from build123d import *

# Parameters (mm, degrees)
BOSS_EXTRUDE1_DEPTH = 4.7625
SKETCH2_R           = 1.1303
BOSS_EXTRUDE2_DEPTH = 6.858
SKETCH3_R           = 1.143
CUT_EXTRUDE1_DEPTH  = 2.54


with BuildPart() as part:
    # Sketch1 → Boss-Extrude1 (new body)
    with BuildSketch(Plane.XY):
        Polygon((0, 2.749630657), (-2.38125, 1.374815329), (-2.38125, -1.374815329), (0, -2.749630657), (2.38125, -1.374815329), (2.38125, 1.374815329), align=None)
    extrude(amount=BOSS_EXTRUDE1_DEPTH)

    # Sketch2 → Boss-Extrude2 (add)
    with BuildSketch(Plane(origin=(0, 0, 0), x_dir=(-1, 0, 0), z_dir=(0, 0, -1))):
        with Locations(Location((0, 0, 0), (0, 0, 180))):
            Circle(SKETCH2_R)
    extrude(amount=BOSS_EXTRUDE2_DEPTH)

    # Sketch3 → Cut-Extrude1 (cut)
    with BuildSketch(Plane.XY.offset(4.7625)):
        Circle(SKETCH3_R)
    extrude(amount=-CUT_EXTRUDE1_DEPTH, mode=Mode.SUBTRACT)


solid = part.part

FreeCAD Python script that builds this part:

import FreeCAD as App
import Part
import Sketcher
from FreeCAD import Vector
Q = App.Units.Quantity


def add_polygon(sketch, points):
    """Adds a closed chain of lines whose ends are joined by coincident constraints."""
    first, n = sketch.GeometryCount, len(points)
    for a, b in zip(points, points[1:] + points[:1]):
        sketch.addGeometry(Part.LineSegment(App.Vector(*a, 0), App.Vector(*b, 0)), False)
    for i in range(n):
        sketch.addConstraint(Sketcher.Constraint("Coincident", first + i, 2, first + (i + 1) % n, 1))

doc = App.newDocument("Part")
params = doc.addObject("Spreadsheet::Sheet", "Params")
for row, (alias, value) in enumerate([
    ("pad1_length", "0.1875 in"),
    ("sketch2_diameter", "0.089 in"),
    ("pad2_length", "0.27 in"),
    ("sketch3_diameter", "0.09 in"),
    ("pocket1_length", "0.1 in"),
], start=1):
    params.set(f"A{row}", alias)
    params.set(f"B{row}", "=" + value)
    params.setAlias(f"B{row}", alias)

body = doc.addObject("PartDesign::Body", "Body")

sketch1 = doc.addObject("Sketcher::SketchObject", "Sketch")
body.addObject(sketch1)
sketch1.AttachmentSupport = (doc.XY_Plane, [""])
sketch1.MapMode = "FlatFace"
add_polygon(sketch1, [(0, 2.7), (-2.4, 1.4), (-2.4, -1.4), (0, -2.7), (2.4, -1.4), (2.4, 1.4)])
sketch1.addConstraint([
    Sketcher.Constraint("Vertical", 1),
    Sketcher.Constraint("Vertical", 4),
    Sketcher.Constraint("Symmetric", 0, 2, 3, 2, -1, 1),
    Sketcher.Constraint("Symmetric", 2, 2, 5, 2, -1, 1),
    Sketcher.Constraint("PointOnObject", 2, 2, -2),
    Sketcher.Constraint("Parallel", 2, 5),
    Sketcher.Constraint("Horizontal", 1, 2, 3, 2),
    Sketcher.Constraint("Angle", 0, Q("-150 deg")),
    Sketcher.Constraint("DistanceX", 0, 2, -1, 1, Q("0.09375 in")),
    Sketcher.Constraint("DistanceY", 1, 2, 1, 1, Q("2.749631 mm")),
])
pad1 = doc.addObject("PartDesign::Pad", "Pad")
body.addObject(pad1)
pad1.Profile = sketch1
pad1.setExpression("Length", "Params.pad1_length")

sketch2 = doc.addObject("Sketcher::SketchObject", "Sketch001")
body.addObject(sketch2)
sketch2.AttachmentSupport = (doc.XY_Plane, [""])
sketch2.MapMode = "FlatFace"
sketch2.addGeometry(Part.Circle(Vector(0, 0, 0), Vector(0, 0, 1), 1.1), False)
sketch2.addConstraint([
    Sketcher.Constraint("Coincident", 0, 3, -1, 1),
    Sketcher.Constraint("Diameter", 0, Q("0.089 in")),
])
sketch2.setExpression("Constraints[1]", "Params.sketch2_diameter")
pad2 = doc.addObject("PartDesign::Pad", "Pad001")
body.addObject(pad2)
pad2.Profile = sketch2
pad2.setExpression("Length", "Params.pad2_length")
pad2.Reversed = True

sketch3 = doc.addObject("Sketcher::SketchObject", "Sketch002")
body.addObject(sketch3)
sketch3.AttachmentSupport = (doc.XY_Plane, [""])
sketch3.MapMode = "FlatFace"
sketch3.AttachmentOffset = App.Placement(Vector(0, 0, 0.1875 * 25.4), App.Rotation())
sketch3.addGeometry(Part.Circle(Vector(0, 0, 0), Vector(0, 0, 1), 1.1), False)
sketch3.addConstraint([
    Sketcher.Constraint("Coincident", 0, 3, -1, 1),
    Sketcher.Constraint("Diameter", 0, Q("0.09 in")),
])
sketch3.setExpression("Constraints[1]", "Params.sketch3_diameter")
pocket1 = doc.addObject("PartDesign::Pocket", "Pocket")
body.addObject(pocket1)
pocket1.Profile = sketch3
pocket1.setExpression("Length", "Params.pocket1_length")

doc.recompute()
